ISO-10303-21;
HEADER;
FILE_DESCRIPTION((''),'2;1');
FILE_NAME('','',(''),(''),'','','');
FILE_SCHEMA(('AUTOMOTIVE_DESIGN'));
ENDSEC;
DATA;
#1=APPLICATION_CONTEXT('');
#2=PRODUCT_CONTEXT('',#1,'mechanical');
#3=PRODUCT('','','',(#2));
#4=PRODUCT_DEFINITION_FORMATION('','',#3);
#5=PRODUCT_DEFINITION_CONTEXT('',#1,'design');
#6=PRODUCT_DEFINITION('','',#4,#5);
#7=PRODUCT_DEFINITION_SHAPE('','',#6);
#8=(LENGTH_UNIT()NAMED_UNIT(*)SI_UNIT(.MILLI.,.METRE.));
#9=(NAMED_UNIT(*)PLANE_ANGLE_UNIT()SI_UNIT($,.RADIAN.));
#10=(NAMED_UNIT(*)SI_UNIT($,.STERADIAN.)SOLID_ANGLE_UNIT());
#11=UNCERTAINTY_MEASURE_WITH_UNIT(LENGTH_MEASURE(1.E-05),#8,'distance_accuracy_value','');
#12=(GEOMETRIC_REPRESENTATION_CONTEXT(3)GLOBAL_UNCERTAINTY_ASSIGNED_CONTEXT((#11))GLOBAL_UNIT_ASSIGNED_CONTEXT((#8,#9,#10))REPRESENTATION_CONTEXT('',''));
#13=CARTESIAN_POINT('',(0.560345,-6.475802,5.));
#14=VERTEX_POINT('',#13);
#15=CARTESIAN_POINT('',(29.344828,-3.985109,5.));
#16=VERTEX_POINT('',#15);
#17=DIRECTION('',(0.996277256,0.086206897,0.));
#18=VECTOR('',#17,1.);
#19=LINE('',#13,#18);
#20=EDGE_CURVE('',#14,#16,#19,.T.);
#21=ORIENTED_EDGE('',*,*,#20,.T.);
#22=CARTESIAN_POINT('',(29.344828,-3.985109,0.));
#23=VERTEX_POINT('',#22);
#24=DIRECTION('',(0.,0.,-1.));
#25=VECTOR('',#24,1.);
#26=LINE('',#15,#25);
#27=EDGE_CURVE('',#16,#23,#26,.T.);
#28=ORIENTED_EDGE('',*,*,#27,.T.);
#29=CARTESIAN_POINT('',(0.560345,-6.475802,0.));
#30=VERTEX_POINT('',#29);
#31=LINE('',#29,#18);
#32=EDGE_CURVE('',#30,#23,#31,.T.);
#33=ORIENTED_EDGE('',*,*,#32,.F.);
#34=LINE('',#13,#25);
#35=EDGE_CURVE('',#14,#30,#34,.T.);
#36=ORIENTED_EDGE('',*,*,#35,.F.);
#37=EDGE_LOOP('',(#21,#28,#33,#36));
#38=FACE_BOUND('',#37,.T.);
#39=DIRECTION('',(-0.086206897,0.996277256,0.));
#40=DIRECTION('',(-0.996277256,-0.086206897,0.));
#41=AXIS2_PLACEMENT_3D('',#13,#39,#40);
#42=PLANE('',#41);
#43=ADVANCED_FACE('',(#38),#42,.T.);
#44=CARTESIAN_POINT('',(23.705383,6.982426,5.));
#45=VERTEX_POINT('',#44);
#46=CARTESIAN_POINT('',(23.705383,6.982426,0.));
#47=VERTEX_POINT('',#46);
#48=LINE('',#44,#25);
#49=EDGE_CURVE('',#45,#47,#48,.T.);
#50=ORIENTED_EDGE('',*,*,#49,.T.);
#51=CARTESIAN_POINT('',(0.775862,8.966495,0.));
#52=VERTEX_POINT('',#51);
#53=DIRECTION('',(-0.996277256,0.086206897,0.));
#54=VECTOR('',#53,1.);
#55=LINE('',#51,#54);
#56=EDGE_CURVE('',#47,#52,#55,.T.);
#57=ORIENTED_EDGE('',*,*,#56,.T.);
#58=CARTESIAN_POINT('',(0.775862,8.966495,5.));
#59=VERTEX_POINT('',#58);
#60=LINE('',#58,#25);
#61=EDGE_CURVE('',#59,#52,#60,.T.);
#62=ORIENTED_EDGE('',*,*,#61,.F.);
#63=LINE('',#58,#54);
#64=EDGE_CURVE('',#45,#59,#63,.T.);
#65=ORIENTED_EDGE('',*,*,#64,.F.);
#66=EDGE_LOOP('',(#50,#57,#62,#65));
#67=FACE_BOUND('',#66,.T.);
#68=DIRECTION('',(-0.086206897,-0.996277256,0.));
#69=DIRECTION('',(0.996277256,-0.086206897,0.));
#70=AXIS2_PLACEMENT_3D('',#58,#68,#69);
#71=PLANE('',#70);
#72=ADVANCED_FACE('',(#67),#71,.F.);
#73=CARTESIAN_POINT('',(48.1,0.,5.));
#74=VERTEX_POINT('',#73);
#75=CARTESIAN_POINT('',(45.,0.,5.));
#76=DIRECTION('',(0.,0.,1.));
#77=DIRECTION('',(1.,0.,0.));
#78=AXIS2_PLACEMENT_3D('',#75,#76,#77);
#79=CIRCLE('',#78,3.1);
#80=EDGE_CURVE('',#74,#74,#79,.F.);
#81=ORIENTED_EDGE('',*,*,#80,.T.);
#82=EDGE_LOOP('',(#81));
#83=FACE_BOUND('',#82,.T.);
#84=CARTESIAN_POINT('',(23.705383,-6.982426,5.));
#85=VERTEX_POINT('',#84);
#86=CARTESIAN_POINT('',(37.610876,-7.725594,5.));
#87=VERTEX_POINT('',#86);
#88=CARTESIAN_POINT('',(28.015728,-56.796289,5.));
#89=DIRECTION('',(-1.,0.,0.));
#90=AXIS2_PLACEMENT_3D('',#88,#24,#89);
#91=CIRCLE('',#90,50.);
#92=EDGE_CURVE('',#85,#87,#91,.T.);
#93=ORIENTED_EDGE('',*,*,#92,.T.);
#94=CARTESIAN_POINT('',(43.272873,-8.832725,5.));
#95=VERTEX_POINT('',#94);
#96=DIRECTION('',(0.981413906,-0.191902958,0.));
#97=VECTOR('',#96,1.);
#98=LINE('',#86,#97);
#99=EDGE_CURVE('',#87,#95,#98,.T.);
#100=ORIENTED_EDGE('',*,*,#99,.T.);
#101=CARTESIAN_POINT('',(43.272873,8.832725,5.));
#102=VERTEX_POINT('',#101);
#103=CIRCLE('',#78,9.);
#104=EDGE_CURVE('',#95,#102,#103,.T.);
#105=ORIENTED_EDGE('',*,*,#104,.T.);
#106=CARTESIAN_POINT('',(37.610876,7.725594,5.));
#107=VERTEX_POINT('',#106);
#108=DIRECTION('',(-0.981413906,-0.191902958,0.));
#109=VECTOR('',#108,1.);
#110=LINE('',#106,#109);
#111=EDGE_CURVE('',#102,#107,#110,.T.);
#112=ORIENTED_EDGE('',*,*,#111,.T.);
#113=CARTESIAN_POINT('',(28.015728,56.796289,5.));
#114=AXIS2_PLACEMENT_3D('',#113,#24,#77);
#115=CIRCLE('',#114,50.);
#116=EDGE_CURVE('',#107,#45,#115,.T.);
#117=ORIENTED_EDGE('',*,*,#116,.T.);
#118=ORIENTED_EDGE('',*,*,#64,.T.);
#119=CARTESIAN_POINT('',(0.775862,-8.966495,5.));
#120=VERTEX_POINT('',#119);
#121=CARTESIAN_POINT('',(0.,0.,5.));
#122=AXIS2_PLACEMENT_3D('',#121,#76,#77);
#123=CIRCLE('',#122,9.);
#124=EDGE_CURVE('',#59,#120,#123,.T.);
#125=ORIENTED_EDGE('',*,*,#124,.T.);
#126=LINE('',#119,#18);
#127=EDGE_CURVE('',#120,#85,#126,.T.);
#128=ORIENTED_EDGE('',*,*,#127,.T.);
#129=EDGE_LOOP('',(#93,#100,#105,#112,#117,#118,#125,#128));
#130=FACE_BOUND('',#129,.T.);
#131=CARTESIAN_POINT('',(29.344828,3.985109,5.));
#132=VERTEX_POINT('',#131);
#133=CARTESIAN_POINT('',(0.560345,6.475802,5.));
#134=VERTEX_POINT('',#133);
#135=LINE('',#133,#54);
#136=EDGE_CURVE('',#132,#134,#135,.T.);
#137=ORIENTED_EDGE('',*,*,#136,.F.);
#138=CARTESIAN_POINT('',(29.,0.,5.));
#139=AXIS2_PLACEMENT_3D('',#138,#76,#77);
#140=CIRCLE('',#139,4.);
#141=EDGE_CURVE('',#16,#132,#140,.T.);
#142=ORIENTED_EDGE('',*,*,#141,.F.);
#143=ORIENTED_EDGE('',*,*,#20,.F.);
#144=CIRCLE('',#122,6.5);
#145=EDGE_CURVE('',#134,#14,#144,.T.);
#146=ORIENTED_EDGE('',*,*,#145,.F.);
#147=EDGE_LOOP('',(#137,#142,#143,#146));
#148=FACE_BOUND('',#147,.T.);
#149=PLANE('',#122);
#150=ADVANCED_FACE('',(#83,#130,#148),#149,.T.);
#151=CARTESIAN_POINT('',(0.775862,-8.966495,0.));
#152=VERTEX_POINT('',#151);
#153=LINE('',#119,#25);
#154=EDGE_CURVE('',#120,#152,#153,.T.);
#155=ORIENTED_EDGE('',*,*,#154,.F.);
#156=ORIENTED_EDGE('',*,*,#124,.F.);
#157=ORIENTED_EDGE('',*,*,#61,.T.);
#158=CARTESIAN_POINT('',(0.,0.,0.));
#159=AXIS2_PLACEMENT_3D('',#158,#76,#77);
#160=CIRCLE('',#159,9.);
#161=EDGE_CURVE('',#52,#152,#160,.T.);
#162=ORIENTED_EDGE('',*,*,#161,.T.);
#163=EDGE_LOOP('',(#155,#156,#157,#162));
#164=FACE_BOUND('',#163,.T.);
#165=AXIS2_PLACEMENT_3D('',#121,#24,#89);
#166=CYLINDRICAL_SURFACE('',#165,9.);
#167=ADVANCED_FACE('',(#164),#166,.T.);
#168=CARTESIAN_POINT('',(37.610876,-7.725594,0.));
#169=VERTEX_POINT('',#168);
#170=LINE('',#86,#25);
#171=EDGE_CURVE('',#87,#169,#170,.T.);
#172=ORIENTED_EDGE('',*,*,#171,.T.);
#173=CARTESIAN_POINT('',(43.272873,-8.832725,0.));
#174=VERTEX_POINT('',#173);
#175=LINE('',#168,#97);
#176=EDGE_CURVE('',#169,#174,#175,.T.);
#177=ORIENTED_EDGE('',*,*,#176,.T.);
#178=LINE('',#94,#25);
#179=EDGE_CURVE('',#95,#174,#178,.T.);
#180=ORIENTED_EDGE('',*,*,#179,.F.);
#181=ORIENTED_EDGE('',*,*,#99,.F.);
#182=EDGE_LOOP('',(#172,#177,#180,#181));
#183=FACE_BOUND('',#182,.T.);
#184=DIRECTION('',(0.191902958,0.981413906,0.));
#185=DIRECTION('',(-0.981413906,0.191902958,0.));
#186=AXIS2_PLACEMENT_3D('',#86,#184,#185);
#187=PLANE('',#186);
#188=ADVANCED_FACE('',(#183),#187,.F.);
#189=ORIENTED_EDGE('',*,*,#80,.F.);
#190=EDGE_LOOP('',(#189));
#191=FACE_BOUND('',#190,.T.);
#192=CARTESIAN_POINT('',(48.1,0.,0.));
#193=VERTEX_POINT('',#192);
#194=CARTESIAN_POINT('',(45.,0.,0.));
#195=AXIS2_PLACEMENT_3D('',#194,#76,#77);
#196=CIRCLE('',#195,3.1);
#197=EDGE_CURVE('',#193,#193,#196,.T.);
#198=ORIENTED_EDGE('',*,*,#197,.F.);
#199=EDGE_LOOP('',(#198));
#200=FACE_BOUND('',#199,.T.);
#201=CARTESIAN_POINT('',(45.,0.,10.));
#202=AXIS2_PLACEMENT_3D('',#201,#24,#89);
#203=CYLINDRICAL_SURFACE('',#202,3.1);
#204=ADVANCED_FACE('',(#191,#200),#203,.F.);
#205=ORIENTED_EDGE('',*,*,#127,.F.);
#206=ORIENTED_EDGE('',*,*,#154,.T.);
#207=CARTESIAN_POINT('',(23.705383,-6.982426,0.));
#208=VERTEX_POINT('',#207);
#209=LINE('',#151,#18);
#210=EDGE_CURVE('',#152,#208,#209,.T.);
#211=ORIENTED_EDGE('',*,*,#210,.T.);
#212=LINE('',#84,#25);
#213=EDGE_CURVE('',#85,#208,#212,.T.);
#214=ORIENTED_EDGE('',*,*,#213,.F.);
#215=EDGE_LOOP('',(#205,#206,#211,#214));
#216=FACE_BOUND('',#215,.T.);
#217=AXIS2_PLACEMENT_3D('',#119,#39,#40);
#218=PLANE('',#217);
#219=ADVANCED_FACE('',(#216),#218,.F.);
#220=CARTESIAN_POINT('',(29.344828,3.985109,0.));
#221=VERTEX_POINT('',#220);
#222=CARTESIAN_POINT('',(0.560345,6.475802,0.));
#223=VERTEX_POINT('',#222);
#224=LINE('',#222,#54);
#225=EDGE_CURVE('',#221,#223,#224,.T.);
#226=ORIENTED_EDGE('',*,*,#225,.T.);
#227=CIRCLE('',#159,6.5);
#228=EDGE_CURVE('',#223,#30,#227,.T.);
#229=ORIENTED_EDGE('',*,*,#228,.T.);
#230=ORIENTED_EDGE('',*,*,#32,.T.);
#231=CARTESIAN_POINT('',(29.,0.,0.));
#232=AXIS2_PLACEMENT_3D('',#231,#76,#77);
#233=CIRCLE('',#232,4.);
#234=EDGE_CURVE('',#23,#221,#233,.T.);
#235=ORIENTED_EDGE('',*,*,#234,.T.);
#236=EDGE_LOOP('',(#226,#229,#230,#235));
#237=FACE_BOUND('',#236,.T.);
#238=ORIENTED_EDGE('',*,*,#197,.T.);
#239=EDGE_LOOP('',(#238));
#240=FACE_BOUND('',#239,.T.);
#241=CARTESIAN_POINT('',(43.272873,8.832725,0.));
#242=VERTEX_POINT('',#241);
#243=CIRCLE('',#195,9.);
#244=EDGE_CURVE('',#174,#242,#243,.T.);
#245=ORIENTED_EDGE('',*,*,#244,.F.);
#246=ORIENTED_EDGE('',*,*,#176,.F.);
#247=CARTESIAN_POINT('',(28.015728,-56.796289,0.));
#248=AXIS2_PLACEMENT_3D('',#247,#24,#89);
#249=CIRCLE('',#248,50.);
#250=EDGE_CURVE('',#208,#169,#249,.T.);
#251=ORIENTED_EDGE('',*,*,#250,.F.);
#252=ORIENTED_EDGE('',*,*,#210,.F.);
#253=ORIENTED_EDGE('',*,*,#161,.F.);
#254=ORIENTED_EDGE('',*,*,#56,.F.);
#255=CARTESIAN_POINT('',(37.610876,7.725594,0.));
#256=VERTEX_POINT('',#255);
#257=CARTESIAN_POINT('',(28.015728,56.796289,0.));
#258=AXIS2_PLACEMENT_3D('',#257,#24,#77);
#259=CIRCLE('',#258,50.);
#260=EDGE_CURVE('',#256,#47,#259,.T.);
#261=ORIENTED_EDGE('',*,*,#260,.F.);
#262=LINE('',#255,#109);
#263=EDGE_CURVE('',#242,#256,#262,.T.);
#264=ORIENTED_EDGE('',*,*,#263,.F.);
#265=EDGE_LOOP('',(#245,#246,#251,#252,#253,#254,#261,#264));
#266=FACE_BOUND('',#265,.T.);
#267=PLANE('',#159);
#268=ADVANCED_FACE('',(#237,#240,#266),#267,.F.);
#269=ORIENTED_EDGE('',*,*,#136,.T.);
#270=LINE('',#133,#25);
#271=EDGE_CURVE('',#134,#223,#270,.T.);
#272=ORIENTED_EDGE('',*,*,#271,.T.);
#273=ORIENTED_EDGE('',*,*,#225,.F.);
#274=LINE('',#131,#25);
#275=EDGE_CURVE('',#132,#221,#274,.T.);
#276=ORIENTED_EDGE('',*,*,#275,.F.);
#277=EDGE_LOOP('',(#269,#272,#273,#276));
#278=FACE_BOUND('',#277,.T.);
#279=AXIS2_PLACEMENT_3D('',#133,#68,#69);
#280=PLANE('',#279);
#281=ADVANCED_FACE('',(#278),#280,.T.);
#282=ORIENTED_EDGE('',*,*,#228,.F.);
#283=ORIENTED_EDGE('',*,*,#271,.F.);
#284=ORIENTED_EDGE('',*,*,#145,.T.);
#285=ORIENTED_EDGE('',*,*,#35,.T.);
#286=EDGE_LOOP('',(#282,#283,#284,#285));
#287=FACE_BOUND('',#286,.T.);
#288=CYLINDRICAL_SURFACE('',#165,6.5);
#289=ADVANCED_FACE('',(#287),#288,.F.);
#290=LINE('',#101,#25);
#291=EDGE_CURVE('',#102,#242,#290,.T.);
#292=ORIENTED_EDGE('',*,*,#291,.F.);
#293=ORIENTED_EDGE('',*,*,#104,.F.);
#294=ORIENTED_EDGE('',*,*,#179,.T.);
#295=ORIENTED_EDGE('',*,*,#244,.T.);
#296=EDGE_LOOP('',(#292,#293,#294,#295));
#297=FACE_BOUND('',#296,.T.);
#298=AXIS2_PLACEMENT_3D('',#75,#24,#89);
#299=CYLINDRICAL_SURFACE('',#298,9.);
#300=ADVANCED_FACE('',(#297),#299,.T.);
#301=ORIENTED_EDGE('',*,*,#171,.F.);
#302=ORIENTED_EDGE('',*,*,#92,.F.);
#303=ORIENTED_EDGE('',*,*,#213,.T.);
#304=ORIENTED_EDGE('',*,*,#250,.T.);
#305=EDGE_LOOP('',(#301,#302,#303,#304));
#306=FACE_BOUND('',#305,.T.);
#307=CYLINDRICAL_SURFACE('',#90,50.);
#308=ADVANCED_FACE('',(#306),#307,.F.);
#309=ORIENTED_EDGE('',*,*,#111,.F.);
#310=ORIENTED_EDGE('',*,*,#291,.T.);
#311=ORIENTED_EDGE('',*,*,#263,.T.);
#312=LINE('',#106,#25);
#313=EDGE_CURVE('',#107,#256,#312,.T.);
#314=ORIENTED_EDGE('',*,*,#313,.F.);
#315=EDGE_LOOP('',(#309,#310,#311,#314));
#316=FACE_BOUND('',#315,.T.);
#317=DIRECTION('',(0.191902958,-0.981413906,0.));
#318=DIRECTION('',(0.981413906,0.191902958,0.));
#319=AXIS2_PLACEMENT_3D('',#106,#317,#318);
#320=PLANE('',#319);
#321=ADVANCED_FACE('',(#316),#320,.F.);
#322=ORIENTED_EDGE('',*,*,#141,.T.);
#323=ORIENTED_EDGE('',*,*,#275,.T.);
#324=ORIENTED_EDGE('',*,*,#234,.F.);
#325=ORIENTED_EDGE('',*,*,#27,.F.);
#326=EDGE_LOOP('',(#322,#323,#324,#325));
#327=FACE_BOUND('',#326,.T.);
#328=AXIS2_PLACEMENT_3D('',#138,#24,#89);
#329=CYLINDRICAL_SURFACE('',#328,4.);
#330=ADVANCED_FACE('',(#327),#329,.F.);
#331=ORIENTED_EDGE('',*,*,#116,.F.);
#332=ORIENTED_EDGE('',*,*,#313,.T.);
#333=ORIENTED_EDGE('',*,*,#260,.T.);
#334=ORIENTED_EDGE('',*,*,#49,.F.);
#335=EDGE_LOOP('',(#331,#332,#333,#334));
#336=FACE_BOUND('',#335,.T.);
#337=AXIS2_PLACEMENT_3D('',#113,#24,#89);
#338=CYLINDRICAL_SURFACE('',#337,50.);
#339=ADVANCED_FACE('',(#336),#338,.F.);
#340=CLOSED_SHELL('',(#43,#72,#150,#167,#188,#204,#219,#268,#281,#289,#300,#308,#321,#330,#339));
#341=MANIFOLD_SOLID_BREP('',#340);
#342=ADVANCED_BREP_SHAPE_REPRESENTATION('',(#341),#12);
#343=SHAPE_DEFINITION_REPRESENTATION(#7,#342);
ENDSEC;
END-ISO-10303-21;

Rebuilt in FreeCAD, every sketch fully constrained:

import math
import FreeCAD as App
import Part
import Sketcher

V = App.Vector
Q = App.Units.Quantity

doc = App.newDocument("Part")
body = doc.addObject("PartDesign::Body", "Body")

sketch1 = body.newObject("Sketcher::SketchObject", "Sketch")
sketch1.AttachmentSupport = (doc.getObject("XY_Plane"), [""])
sketch1.MapMode = "FlatFace"
sketch1.addGeometry(Part.LineSegment(V(23.705383, 6.982426, 0), V(0.775862, 8.966495, 0)), False)
sketch1.addGeometry(Part.ArcOfCircle(Part.Circle(V(0, 0, 0), V(0, 0, 1), 9), math.radians(85.05457), math.radians(274.94543)), False)
sketch1.addGeometry(Part.LineSegment(V(0.775862, -8.966495, 0), V(23.705383, -6.982426, 0)), False)
sketch1.addGeometry(Part.ArcOfCircle(Part.Circle(V(28.015728, -56.796289, 0), V(0, 0, 1), 50), math.radians(78.93614), math.radians(94.94543)), False)
sketch1.addGeometry(Part.LineSegment(V(37.610876, -7.725594, 0), V(43.272873, -8.832725, 0)), False)
sketch1.addGeometry(Part.ArcOfCircle(Part.Circle(V(45, 0, 0), V(0, 0, 1), 9), math.radians(-101.06386), math.radians(101.06386)), False)
sketch1.addGeometry(Part.LineSegment(V(43.272873, 8.832725, 0), V(37.610876, 7.725594, 0)), False)
sketch1.addGeometry(Part.ArcOfCircle(Part.Circle(V(28.015728, 56.796289, 0), V(0, 0, 1), 50), math.radians(-94.94543), math.radians(-78.93614)), False)
sketch1.addConstraint(Sketcher.Constraint("Tangent", 0, 2, 1, 1))
sketch1.addConstraint(Sketcher.Constraint("Tangent", 1, 2, 2, 1))
sketch1.addConstraint(Sketcher.Constraint("Tangent", 2, 2, 3, 2))
sketch1.addConstraint(Sketcher.Constraint("Tangent", 3, 1, 4, 1))
sketch1.addConstraint(Sketcher.Constraint("Tangent", 4, 2, 5, 1))
sketch1.addConstraint(Sketcher.Constraint("Tangent", 5, 2, 6, 1))
sketch1.addConstraint(Sketcher.Constraint("Tangent", 6, 2, 7, 2))
sketch1.addConstraint(Sketcher.Constraint("Tangent", 7, 1, 0, 1))
sketch1.addConstraint(Sketcher.Constraint("Coincident", 1, 3, -1, 1))
sketch1.addConstraint(Sketcher.Constraint("Equal", 1, 5))
sketch1.addConstraint(Sketcher.Constraint("Equal", 3, 7))
sketch1.addConstraint(Sketcher.Constraint("Symmetric", 3, 3, 7, 3, -1))
sketch1.addConstraint(Sketcher.Constraint("PointOnObject", 5, 3, -1))
sketch1.addConstraint(Sketcher.Constraint("Radius", 1, Q("9 mm")))
sketch1.addConstraint(Sketcher.Constraint("Radius", 3, Q("50 mm")))
sketch1.addConstraint(Sketcher.Constraint("DistanceX", -1, 1, 5, 3, Q("45 mm")))
sketch1.addConstraint(Sketcher.Constraint("Distance", 0, Q("23.015201 mm")))
sketch1.addConstraint(Sketcher.Constraint("DistanceY", 1, 2, 3, 1, Q("1.240902 mm")))
pad1 = body.newObject("PartDesign::Pad", "Pad")
pad1.Profile = sketch1
pad1.Length = 5

sketch2 = body.newObject("Sketcher::SketchObject", "Sketch001")
sketch2.AttachmentSupport = (doc.getObject("XY_Plane"), [""])
sketch2.MapMode = "FlatFace"
sketch2.addGeometry(Part.LineSegment(V(29.344828, 3.985109, 0), V(0.560345, 6.475802, 0)), False)
sketch2.addGeometry(Part.ArcOfCircle(Part.Circle(V(0, 0, 0), V(0, 0, 1), 6.5), math.radians(85.05457), math.radians(274.94543)), False)
sketch2.addGeometry(Part.LineSegment(V(0.560345, -6.475802, 0), V(29.344828, -3.985109, 0)), False)
sketch2.addGeometry(Part.ArcOfCircle(Part.Circle(V(29, 0, 0), V(0, 0, 1), 4), math.radians(-85.05457), math.radians(85.05457)), False)
sketch2.addConstraint(Sketcher.Constraint("Tangent", 0, 2, 1, 1))
sketch2.addConstraint(Sketcher.Constraint("Tangent", 1, 2, 2, 1))
sketch2.addConstraint(Sketcher.Constraint("Tangent", 2, 2, 3, 1))
sketch2.addConstraint(Sketcher.Constraint("Tangent", 3, 2, 0, 1))
sketch2.addConstraint(Sketcher.Constraint("Coincident", 1, 3, -1, 1))
sketch2.addConstraint(Sketcher.Constraint("PointOnObject", 3, 3, -1))
sketch2.addConstraint(Sketcher.Constraint("Radius", 3, Q("4 mm")))
sketch2.addConstraint(Sketcher.Constraint("Radius", 1, Q("6.5 mm")))
sketch2.addConstraint(Sketcher.Constraint("DistanceX", -1, 1, 3, 3, Q("29 mm")))
pocket1 = body.newObject("PartDesign::Pocket", "Pocket")
pocket1.Profile = sketch2
pocket1.Type = "ThroughAll"
pocket1.Reversed = True

sketch3 = body.newObject("Sketcher::SketchObject", "Sketch002")
sketch3.AttachmentSupport = (doc.getObject("XY_Plane"), [""])
sketch3.MapMode = "FlatFace"
sketch3.addGeometry(Part.Circle(V(45, 0, 0), V(0, 0, 1), 3.1), False)
sketch3.addConstraint(Sketcher.Constraint("PointOnObject", 0, 3, -1))
sketch3.addConstraint(Sketcher.Constraint("Diameter", 0, Q("6.2 mm")))
sketch3.addConstraint(Sketcher.Constraint("DistanceX", -1, 1, 0, 3, Q("45 mm")))
pocket2 = body.newObject("PartDesign::Pocket", "Pocket001")
pocket2.Profile = sketch3
pocket2.Length = 10
pocket2.Reversed = True

doc.recompute()
